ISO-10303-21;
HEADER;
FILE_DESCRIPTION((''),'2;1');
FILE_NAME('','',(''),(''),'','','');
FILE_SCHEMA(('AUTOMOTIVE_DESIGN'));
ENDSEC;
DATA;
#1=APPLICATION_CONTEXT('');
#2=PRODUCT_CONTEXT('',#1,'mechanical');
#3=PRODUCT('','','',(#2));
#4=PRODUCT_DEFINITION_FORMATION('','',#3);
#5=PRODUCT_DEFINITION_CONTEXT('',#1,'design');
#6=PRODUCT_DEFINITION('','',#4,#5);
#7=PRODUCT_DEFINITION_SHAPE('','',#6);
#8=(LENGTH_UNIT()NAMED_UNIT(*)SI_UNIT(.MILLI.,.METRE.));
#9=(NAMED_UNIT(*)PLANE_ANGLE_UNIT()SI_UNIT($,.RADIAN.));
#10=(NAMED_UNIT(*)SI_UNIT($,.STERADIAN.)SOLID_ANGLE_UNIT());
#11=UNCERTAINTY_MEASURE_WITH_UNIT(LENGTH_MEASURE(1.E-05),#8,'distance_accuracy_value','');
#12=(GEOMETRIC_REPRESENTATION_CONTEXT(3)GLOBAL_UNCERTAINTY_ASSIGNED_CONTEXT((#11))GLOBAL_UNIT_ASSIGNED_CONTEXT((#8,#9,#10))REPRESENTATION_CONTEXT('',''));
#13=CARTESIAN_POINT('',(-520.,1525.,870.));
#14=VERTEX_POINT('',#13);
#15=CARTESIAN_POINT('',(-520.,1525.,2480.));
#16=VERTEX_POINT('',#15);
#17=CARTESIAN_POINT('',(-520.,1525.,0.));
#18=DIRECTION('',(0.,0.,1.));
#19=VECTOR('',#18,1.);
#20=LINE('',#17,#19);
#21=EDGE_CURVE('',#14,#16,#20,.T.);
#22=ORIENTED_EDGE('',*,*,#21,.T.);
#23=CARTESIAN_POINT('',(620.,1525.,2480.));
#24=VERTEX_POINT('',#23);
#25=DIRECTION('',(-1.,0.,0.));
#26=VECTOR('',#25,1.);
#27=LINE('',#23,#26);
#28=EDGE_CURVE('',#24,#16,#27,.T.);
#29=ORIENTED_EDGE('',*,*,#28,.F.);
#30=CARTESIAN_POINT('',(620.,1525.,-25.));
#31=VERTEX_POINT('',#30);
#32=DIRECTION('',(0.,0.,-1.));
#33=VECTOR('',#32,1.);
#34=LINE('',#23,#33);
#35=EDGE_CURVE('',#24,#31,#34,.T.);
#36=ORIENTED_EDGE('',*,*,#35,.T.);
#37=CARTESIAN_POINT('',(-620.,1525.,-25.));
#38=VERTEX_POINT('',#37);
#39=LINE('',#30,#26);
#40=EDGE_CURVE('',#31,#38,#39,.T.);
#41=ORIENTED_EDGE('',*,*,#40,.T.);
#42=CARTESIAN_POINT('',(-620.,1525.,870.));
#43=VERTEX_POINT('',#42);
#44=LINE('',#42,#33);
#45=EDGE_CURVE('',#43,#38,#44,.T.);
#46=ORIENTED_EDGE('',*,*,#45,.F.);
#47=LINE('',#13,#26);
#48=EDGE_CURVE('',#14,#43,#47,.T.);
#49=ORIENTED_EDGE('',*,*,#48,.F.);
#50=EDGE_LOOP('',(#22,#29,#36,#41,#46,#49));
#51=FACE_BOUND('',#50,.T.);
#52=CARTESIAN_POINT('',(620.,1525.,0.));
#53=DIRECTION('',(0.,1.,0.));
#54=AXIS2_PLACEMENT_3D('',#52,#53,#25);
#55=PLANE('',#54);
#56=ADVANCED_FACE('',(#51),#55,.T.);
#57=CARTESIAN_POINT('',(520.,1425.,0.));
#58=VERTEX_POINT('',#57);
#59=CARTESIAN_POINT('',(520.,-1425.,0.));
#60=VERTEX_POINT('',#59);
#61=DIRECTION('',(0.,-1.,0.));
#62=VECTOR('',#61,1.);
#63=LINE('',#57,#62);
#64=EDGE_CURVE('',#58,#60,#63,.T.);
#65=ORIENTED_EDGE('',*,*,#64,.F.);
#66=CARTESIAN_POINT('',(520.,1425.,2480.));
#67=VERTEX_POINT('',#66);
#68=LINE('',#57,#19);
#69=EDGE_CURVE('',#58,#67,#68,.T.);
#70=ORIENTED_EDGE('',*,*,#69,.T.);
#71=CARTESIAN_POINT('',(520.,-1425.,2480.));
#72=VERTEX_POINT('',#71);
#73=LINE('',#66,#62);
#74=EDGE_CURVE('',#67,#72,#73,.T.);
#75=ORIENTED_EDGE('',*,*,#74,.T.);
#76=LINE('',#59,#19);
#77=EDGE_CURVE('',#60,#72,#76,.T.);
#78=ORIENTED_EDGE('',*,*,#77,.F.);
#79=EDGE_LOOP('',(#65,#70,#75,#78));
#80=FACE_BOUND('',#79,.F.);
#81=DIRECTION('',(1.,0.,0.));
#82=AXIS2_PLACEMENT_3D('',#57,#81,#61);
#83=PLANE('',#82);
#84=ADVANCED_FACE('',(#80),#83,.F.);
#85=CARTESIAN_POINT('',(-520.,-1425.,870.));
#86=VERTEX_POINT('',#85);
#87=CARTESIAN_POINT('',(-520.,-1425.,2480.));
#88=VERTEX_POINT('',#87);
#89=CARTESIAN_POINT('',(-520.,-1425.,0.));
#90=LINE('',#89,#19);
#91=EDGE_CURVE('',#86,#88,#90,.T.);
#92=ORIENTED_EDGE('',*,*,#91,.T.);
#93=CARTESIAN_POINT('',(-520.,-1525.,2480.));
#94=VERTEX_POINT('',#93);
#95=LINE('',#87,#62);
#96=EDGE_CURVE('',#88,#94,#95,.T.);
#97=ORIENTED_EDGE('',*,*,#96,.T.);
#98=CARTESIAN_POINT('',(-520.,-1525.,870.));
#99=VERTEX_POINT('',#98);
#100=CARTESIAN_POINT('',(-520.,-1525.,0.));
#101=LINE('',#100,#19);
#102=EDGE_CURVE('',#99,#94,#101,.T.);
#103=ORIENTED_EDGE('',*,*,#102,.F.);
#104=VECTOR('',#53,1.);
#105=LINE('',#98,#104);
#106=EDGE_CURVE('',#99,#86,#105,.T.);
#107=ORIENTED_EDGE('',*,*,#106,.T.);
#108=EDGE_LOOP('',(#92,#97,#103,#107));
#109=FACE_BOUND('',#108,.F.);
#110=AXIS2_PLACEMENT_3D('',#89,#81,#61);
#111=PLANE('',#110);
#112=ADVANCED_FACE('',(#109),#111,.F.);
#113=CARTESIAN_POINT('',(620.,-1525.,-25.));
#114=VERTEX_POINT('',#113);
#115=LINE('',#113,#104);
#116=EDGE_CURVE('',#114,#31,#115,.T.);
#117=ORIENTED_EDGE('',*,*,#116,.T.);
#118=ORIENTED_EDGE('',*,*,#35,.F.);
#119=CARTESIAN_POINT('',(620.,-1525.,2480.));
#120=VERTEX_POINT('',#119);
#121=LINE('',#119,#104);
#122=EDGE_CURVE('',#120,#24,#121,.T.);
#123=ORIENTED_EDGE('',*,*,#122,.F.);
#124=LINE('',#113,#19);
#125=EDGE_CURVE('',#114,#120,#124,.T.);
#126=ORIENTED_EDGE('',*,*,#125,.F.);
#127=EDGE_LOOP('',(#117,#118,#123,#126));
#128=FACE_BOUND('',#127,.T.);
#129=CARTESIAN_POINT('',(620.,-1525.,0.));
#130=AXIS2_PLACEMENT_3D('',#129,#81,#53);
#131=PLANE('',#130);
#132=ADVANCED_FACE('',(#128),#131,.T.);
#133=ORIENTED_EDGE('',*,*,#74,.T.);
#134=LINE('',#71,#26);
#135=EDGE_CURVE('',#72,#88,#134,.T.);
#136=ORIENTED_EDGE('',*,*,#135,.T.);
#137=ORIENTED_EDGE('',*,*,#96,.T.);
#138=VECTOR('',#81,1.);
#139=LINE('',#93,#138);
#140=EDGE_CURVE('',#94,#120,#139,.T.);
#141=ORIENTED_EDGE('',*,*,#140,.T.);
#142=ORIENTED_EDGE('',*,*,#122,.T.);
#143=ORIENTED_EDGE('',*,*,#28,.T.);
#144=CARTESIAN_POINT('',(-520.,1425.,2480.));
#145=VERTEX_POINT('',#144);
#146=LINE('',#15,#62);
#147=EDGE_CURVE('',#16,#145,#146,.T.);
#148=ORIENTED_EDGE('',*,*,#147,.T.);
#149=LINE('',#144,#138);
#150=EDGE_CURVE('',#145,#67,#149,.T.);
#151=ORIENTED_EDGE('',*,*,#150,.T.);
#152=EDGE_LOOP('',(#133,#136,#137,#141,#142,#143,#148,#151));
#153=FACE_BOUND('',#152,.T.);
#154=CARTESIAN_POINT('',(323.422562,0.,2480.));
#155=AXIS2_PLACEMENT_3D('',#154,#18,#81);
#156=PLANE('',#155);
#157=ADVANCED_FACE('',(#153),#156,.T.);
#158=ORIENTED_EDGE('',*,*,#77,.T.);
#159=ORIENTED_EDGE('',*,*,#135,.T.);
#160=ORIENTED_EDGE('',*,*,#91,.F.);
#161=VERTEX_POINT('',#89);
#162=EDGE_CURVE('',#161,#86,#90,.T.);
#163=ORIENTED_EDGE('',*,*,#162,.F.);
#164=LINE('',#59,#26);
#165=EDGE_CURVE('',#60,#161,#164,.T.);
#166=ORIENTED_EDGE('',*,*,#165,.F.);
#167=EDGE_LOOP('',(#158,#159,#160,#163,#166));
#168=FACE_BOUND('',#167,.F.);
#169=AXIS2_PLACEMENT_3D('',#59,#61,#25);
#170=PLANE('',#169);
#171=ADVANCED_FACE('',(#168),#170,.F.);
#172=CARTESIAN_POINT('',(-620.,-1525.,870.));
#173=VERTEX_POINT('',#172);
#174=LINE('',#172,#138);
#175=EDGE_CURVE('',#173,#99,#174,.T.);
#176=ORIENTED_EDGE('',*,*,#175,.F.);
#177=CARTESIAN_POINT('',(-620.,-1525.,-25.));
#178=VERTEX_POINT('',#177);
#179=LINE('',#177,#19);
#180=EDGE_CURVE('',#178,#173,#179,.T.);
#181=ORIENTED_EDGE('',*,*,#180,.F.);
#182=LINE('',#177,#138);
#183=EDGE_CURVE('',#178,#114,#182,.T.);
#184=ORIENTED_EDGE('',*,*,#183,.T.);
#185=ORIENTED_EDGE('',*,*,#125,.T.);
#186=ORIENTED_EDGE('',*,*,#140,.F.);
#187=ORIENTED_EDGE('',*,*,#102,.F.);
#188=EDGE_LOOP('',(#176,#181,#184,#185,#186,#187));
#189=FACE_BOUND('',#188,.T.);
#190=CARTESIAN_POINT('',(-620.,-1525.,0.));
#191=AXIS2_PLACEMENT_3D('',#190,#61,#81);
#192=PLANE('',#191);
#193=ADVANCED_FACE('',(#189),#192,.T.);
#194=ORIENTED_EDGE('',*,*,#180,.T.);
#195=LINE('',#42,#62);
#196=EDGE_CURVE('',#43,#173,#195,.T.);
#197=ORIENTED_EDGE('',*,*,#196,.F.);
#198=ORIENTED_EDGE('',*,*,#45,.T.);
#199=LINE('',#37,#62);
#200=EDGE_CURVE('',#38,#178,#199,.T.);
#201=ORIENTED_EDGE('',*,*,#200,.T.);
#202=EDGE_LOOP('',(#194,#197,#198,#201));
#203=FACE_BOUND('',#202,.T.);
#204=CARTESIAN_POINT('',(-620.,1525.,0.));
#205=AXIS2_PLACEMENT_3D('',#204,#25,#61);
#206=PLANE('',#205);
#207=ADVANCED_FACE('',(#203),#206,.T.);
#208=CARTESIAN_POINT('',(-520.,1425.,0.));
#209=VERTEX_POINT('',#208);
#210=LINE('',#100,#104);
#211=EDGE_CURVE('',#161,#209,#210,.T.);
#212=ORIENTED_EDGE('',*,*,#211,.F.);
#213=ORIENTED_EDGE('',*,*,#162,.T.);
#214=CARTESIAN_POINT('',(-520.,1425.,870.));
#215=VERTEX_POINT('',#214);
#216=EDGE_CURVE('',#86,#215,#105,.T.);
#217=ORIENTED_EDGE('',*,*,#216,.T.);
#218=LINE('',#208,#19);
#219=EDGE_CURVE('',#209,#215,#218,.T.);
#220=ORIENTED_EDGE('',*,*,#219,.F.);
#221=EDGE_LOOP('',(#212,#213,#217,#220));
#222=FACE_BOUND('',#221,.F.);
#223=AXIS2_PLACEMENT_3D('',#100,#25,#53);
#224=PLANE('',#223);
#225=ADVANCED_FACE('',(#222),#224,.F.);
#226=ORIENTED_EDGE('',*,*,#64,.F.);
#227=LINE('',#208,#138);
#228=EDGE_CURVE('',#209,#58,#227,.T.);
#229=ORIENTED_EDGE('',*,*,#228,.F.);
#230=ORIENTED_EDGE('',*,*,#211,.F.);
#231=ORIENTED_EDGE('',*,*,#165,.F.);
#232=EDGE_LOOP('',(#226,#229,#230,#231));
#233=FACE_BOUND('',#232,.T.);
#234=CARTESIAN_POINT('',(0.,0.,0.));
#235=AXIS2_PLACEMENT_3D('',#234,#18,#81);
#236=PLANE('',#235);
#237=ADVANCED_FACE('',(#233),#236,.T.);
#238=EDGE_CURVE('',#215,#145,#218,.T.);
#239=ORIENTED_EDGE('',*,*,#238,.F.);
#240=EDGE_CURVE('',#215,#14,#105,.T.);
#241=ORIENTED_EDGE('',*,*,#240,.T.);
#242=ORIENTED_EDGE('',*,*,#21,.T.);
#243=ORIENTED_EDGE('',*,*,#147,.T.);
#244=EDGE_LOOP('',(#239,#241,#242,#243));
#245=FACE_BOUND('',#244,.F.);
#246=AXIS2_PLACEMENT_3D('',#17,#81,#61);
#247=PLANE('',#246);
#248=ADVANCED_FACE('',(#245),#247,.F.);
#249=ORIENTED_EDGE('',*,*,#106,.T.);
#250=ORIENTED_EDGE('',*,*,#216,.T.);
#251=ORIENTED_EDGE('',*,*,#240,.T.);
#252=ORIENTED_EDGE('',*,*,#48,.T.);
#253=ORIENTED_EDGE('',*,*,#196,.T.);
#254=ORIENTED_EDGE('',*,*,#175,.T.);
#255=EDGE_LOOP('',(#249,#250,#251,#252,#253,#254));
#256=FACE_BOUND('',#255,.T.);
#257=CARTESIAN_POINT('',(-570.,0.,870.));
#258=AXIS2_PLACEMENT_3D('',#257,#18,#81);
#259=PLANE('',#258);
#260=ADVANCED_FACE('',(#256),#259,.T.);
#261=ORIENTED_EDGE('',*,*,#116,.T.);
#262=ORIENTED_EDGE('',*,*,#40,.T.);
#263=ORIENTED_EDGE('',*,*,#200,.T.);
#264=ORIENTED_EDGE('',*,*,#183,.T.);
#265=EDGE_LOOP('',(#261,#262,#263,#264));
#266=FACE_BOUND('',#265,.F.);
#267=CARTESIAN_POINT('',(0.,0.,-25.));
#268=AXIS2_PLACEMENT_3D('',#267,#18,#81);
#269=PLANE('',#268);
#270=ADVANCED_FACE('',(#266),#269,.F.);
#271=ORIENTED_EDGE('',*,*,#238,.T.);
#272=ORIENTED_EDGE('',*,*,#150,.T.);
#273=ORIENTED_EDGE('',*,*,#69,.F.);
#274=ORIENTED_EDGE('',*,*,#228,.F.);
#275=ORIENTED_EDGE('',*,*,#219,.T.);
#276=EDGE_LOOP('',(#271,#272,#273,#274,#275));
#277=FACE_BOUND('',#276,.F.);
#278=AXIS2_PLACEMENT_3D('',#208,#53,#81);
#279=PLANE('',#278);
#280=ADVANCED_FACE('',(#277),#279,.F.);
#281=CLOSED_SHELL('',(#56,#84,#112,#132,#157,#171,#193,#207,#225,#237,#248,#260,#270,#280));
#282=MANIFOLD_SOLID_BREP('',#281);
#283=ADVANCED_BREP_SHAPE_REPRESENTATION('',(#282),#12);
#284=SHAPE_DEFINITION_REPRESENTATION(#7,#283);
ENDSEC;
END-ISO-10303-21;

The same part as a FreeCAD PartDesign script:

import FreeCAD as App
import Part
import Sketcher

doc = App.newDocument("Part")
body = doc.addObject("PartDesign::Body", "Body")

# Sketch on XY plane
sketch1 = body.newObject("Sketcher::SketchObject", "Sketch")
sketch1.AttachmentSupport = (doc.getObject("XY_Plane"), [""])
sketch1.MapMode = "FlatFace"
sketch1.addGeometry([
    Part.LineSegment(App.Vector(-520, -1525, 0), App.Vector(-520, 1525, 0)),
    Part.LineSegment(App.Vector(-520, 1525, 0), App.Vector(-620, 1525, 0)),
    Part.LineSegment(App.Vector(-620, 1525, 0), App.Vector(-620, -1525, 0)),
    Part.LineSegment(App.Vector(-620, -1525, 0), App.Vector(-520, -1525, 0)),
], False)
sketch1.addConstraint([
    Sketcher.Constraint("Coincident", 0, 2, 1, 1),
    Sketcher.Constraint("Coincident", 1, 2, 2, 1),
    Sketcher.Constraint("Coincident", 2, 2, 3, 1),
    Sketcher.Constraint("Coincident", 3, 2, 0, 1),
    Sketcher.Constraint("Vertical", 0),
    Sketcher.Constraint("Horizontal", 1),
    Sketcher.Constraint("Vertical", 2),
    Sketcher.Constraint("Horizontal", 3),
    Sketcher.Constraint("DistanceX", 1, 2, 1, 1, 100.0),
    Sketcher.Constraint("DistanceY", 0, 1, 0, 2, 3050.0),
    Sketcher.Constraint("DistanceX", 0, 2, -1, 1, 520.0),
    Sketcher.Constraint("DistanceY", -1, 1, 0, 2, 1525.0),
])
pad1 = body.newObject("PartDesign::Pad", "Pad")
pad1.Profile = sketch1
pad1.Length = 870

# Sketch on XY plane
sketch2 = body.newObject("Sketcher::SketchObject", "Sketch001")
sketch2.AttachmentSupport = (doc.getObject("XY_Plane"), [""])
sketch2.MapMode = "FlatFace"
sketch2.addGeometry([
    Part.LineSegment(App.Vector(520, 1425, 0), App.Vector(520, -1425, 0)),  # 0
    Part.LineSegment(App.Vector(520, -1425, 0), App.Vector(-520, -1425, 0)),  # 1
    Part.LineSegment(App.Vector(-520, -1425, 0), App.Vector(-520, -1525, 0)),  # 2
    Part.LineSegment(App.Vector(-520, -1525, 0), App.Vector(620, -1525, 0)),  # 3
    Part.LineSegment(App.Vector(620, -1525, 0), App.Vector(620, 1525, 0)),  # 4
    Part.LineSegment(App.Vector(620, 1525, 0), App.Vector(-520, 1525, 0)),  # 5
    Part.LineSegment(App.Vector(-520, 1525, 0), App.Vector(-520, 1425, 0)),  # 6
    Part.LineSegment(App.Vector(-520, 1425, 0), App.Vector(520, 1425, 0)),  # 7
], False)
sketch2.addConstraint([
    Sketcher.Constraint("Coincident", 0, 2, 1, 1),
    Sketcher.Constraint("Coincident", 1, 2, 2, 1),
    Sketcher.Constraint("Coincident", 2, 2, 3, 1),
    Sketcher.Constraint("Coincident", 3, 2, 4, 1),
    Sketcher.Constraint("Coincident", 4, 2, 5, 1),
    Sketcher.Constraint("Coincident", 5, 2, 6, 1),
    Sketcher.Constraint("Coincident", 6, 2, 7, 1),
    Sketcher.Constraint("Coincident", 7, 2, 0, 1),
    Sketcher.Constraint("Vertical", 0),
    Sketcher.Constraint("Horizontal", 1),
    Sketcher.Constraint("Vertical", 2),
    Sketcher.Constraint("Horizontal", 3),
    Sketcher.Constraint("Vertical", 4),
    Sketcher.Constraint("Horizontal", 5),
    Sketcher.Constraint("Vertical", 6),
    Sketcher.Constraint("Horizontal", 7),
    Sketcher.Constraint("Symmetric", 0, 2, 6, 2, -1, 1),
    Sketcher.Constraint("Symmetric", 2, 2, 5, 2, -1),
    Sketcher.Constraint("DistanceX", 1, 2, 1, 1, 1040.0),
    Sketcher.Constraint("DistanceX", 3, 1, 3, 2, 1140.0),
    Sketcher.Constraint("DistanceY", 0, 2, 0, 1, 2850.0),
    Sketcher.Constraint("DistanceY", 2, 2, 2, 1, 100.0),
])
pad2 = body.newObject("PartDesign::Pad", "Pad001")
pad2.Profile = sketch2
pad2.Length = 2480

# Sketch on XY plane
sketch3 = body.newObject("Sketcher::SketchObject", "Sketch002")
sketch3.AttachmentSupport = (doc.getObject("XY_Plane"), [""])
sketch3.MapMode = "FlatFace"
sketch3.addGeometry([
    Part.LineSegment(App.Vector(-620, 1525, 0), App.Vector(-620, -1525, 0)),
    Part.LineSegment(App.Vector(-620, -1525, 0), App.Vector(620, -1525, 0)),
    Part.LineSegment(App.Vector(620, -1525, 0), App.Vector(620, 1525, 0)),
    Part.LineSegment(App.Vector(620, 1525, 0), App.Vector(-620, 1525, 0)),
], False)
sketch3.addConstraint([
    Sketcher.Constraint("Coincident", 0, 2, 1, 1),
    Sketcher.Constraint("Coincident", 1, 2, 2, 1),
    Sketcher.Constraint("Coincident", 2, 2, 3, 1),
    Sketcher.Constraint("Coincident", 3, 2, 0, 1),
    Sketcher.Constraint("Vertical", 0),
    Sketcher.Constraint("Horizontal", 1),
    Sketcher.Constraint("Vertical", 2),
    Sketcher.Constraint("Horizontal", 3),
    Sketcher.Constraint("Symmetric", 0, 2, 2, 2, -1, 1),
    Sketcher.Constraint("DistanceX", 1, 1, 1, 2, 1240.0),
    Sketcher.Constraint("DistanceY", 0, 2, 0, 1, 3050.0),
])
pad3 = body.newObject("PartDesign::Pad", "Pad002")
pad3.Profile = sketch3
pad3.Length = 25
pad3.Reversed = True

doc.recompute()
